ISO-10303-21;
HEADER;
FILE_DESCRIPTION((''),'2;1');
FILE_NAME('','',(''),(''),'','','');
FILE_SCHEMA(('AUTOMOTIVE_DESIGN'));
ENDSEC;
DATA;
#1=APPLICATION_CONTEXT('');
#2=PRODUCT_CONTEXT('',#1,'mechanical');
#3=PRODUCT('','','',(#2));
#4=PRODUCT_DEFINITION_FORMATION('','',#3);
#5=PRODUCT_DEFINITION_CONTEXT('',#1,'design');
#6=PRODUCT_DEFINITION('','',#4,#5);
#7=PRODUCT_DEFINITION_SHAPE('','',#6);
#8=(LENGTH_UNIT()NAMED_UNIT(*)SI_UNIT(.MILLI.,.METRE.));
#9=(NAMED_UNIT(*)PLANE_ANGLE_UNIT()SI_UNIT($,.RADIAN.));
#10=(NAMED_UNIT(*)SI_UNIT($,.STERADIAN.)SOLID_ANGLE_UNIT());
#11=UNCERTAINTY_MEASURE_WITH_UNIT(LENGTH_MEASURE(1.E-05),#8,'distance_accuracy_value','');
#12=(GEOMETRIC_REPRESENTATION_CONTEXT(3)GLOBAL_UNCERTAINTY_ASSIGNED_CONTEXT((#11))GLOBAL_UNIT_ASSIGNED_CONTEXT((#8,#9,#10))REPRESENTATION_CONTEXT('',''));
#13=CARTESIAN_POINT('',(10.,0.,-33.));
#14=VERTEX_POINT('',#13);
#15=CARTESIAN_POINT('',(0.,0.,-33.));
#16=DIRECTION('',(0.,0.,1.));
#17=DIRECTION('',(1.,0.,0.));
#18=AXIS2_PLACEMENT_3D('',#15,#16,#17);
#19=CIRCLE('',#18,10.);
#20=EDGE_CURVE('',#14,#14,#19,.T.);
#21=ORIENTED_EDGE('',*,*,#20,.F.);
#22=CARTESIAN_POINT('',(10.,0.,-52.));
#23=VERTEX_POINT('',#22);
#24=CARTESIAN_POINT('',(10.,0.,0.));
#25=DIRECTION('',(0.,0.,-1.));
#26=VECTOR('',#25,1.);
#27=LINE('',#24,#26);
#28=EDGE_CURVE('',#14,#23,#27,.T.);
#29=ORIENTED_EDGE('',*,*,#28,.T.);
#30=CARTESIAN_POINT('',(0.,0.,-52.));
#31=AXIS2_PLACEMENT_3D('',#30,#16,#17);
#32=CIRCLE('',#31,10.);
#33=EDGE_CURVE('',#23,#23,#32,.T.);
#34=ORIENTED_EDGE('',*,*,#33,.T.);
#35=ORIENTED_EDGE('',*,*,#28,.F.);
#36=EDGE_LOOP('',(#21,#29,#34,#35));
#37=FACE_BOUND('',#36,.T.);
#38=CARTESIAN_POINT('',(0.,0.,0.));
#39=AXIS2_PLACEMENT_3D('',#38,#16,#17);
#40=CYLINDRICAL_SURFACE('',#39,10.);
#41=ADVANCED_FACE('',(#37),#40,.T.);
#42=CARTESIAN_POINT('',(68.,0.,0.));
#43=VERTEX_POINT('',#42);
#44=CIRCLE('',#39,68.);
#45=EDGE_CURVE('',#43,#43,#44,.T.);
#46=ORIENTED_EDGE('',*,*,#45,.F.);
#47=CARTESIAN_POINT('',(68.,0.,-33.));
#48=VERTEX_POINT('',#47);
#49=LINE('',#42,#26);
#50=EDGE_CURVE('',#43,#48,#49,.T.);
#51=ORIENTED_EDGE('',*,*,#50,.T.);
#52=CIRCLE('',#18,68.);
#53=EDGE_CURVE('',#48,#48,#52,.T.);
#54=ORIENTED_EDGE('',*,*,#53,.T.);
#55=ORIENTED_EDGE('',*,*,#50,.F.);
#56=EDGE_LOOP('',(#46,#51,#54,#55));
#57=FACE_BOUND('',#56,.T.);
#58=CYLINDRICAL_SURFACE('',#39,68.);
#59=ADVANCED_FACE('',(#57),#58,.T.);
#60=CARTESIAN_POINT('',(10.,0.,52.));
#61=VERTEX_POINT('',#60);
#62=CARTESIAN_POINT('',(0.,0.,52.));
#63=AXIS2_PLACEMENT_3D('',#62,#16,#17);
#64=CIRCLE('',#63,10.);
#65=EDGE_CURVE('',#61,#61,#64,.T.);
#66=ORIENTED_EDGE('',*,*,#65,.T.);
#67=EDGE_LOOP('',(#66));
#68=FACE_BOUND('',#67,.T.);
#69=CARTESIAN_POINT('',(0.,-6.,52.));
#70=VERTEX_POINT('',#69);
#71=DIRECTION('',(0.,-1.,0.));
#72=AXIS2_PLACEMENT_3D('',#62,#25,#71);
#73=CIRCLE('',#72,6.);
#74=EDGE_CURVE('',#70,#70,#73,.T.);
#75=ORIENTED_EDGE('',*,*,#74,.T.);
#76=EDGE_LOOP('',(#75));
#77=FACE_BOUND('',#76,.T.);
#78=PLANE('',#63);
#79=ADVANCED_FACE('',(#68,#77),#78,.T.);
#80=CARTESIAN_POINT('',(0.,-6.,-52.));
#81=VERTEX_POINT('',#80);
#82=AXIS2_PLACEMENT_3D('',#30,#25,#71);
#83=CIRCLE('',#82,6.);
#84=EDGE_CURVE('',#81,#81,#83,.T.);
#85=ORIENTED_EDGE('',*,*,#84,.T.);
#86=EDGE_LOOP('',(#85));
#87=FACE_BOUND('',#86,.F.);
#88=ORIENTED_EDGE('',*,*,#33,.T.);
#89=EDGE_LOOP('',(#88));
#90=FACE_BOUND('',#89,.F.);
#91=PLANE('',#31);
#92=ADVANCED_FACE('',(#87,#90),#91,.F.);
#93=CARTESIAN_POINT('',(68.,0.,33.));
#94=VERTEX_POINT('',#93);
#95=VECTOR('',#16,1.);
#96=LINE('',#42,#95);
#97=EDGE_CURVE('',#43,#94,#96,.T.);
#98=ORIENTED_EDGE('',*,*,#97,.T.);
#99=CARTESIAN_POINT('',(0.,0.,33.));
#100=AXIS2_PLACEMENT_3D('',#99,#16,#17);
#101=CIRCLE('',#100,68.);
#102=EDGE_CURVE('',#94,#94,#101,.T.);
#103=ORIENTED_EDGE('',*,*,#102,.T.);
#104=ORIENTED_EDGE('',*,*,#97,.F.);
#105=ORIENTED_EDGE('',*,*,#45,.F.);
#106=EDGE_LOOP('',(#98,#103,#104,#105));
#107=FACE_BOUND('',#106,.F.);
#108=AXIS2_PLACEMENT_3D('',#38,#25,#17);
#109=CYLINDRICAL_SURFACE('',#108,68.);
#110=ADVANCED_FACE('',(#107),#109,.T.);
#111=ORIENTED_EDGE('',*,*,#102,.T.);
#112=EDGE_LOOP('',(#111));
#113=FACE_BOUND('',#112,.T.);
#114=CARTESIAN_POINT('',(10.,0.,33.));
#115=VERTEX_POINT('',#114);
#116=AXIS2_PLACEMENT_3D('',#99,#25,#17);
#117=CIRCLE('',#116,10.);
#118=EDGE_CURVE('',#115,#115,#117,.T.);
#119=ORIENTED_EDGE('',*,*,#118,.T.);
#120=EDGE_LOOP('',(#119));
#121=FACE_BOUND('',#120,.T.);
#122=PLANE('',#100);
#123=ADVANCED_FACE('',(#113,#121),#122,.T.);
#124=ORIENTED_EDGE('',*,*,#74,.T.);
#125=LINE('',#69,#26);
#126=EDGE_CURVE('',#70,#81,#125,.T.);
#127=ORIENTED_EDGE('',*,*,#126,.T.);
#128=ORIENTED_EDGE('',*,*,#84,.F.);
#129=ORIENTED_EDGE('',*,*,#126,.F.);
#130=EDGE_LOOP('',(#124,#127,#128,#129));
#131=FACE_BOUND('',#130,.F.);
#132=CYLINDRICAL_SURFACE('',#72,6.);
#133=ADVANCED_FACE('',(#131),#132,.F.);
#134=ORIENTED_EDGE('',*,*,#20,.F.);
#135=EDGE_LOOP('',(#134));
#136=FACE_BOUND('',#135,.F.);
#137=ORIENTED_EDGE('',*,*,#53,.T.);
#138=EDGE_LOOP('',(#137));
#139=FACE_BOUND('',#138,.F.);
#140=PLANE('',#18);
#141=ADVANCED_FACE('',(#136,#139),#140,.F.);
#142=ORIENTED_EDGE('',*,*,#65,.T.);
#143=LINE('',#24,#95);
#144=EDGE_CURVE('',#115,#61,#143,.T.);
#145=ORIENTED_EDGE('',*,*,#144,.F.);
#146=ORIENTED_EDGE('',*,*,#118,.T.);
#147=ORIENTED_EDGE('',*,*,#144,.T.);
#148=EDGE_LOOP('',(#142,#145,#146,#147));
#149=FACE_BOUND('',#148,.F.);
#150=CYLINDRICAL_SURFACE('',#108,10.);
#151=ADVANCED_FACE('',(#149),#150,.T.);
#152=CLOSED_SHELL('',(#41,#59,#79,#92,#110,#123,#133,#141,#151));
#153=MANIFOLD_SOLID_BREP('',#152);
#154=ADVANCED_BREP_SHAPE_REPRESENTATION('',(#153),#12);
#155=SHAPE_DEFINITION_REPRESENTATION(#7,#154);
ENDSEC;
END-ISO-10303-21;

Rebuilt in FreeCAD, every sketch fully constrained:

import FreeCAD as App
import Part
import Sketcher

doc = App.newDocument("Part")
body = doc.addObject("PartDesign::Body", "Body")

sketch1 = body.newObject("Sketcher::SketchObject", "Sketch")
sketch1.AttachmentSupport = (doc.getObject("XY_Plane"), [""])
sketch1.MapMode = "FlatFace"
sketch1.addGeometry(Part.Circle(App.Vector(0, 0, 0), App.Vector(0, 0, 1), 68), False)
sketch1.addConstraint(Sketcher.Constraint("Coincident", 0, 3, -1, 1))
sketch1.addConstraint(Sketcher.Constraint("Diameter", 0, 136.0))
pad1 = body.newObject("PartDesign::Pad", "Pad")
pad1.Profile = sketch1
pad1.Length = 66
pad1.Midplane = True

sketch2 = body.newObject("Sketcher::SketchObject", "Sketch001")
sketch2.AttachmentSupport = (doc.getObject("XY_Plane"), [""])
sketch2.MapMode = "FlatFace"
sketch2.addGeometry(Part.Circle(App.Vector(0, 0, 0), App.Vector(0, 0, 1), 10), False)
sketch2.addConstraint(Sketcher.Constraint("Coincident", 0, 3, -1, 1))
sketch2.addConstraint(Sketcher.Constraint("Diameter", 0, 20.0))
pad2 = body.newObject("PartDesign::Pad", "Pad001")
pad2.Profile = sketch2
pad2.Length = 104
pad2.Midplane = True

sketch3 = body.newObject("Sketcher::SketchObject", "Sketch002")
sketch3.AttachmentSupport = (doc.getObject("XY_Plane"), [""])
sketch3.MapMode = "FlatFace"
sketch3.AttachmentOffset = App.Placement(App.Vector(0, 0, 52), App.Rotation())
sketch3.addGeometry(Part.Circle(App.Vector(0, 0, 0), App.Vector(0, 0, 1), 6), False)
sketch3.addConstraint(Sketcher.Constraint("Coincident", 0, 3, -1, 1))
sketch3.addConstraint(Sketcher.Constraint("Diameter", 0, 12.0))
doc.recompute()
hole = body.newObject("PartDesign::Hole", "Hole")
hole.Profile = sketch3
hole.ThreadType = "None"
hole.Diameter = 12
hole.DepthType = "ThroughAll"

doc.recompute()
